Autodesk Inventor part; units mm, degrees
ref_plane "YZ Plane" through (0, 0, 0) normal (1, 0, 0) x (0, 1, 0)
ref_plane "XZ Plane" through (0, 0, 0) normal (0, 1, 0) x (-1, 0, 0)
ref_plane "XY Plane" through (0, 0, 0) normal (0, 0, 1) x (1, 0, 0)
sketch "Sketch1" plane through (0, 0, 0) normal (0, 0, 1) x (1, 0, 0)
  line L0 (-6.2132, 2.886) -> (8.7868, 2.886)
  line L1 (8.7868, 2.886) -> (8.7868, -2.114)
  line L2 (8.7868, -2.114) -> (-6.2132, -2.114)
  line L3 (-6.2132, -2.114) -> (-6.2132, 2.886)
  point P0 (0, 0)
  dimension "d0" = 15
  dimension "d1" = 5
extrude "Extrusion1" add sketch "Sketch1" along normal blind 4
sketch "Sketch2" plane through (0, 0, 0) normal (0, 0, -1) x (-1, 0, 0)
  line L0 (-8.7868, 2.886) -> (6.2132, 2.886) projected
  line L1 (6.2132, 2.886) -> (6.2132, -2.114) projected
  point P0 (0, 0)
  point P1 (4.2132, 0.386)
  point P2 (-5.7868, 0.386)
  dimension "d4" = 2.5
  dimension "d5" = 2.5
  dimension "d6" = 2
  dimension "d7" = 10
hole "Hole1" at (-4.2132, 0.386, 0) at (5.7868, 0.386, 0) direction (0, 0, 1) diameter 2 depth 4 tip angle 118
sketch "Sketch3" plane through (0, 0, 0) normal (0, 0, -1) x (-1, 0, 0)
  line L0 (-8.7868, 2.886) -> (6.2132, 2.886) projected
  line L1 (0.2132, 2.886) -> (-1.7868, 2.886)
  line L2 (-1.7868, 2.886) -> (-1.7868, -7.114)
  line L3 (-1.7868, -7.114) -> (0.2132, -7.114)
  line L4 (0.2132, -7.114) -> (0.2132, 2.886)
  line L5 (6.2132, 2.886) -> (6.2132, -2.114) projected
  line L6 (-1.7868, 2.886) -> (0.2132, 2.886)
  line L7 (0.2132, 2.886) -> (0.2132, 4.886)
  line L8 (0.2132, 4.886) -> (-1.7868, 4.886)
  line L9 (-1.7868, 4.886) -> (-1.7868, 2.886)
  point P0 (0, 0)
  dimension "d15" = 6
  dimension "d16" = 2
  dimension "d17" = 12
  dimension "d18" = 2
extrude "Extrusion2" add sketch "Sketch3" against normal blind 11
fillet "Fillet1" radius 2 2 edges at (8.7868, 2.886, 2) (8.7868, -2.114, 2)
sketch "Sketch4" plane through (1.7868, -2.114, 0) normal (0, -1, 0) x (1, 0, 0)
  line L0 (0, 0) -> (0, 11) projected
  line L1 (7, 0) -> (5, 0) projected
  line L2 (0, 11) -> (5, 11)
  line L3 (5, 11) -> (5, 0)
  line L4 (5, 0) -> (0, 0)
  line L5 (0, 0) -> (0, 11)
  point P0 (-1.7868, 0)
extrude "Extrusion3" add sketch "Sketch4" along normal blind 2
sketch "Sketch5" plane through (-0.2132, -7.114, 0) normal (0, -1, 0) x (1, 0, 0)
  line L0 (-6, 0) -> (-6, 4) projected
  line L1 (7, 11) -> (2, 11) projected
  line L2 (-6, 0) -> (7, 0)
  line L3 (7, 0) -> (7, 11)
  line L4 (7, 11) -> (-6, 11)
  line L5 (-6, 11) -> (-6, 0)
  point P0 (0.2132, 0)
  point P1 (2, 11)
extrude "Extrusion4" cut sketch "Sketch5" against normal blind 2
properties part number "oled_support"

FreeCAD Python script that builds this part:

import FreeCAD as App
import Part
import Sketcher

V = App.Vector
Q = App.Units.Quantity


def edges_at(feature, points):
    """Names of the edges that pass closest to the given points."""
    edges = feature.Shape.Edges
    near = lambda p: min(range(len(edges)), key=lambda i: edges[i].distToShape(Part.Vertex(*p))[0])
    return sorted({f"Edge{near(p) + 1}" for p in points})


def add_polygon(sketch, points):
    """Adds a closed chain of lines whose ends are joined by coincident constraints."""
    first, n = sketch.GeometryCount, len(points)
    for a, b in zip(points, points[1:] + points[:1]):
        sketch.addGeometry(Part.LineSegment(App.Vector(*a, 0), App.Vector(*b, 0)), False)
    for i in range(n):
        sketch.addConstraint(Sketcher.Constraint("Coincident", first + i, 2, first + (i + 1) % n, 1))

doc = App.newDocument("Part")
body = doc.addObject("PartDesign::Body", "Body")

sketch1 = doc.addObject("Sketcher::SketchObject", "Sketch")
body.addObject(sketch1)
sketch1.AttachmentSupport = (doc.XY_Plane, [""])
sketch1.MapMode = "FlatFace"
add_polygon(sketch1, [(9, 3), (-6, 3), (-6, -2), (9, -2)])
sketch1.addConstraint(Sketcher.Constraint("Horizontal", 0))
sketch1.addConstraint(Sketcher.Constraint("Vertical", 1))
sketch1.addConstraint(Sketcher.Constraint("Horizontal", 2))
sketch1.addConstraint(Sketcher.Constraint("Vertical", 3))
sketch1.addConstraint(Sketcher.Constraint("DistanceX", 0, 2, 0, 1, Q("15 mm")))
sketch1.addConstraint(Sketcher.Constraint("DistanceY", 1, 2, 1, 1, Q("5 mm")))
sketch1.addConstraint(Sketcher.Constraint("DistanceY", -1, 1, 0, 2, Q("2.886 mm")))
sketch1.addConstraint(Sketcher.Constraint("DistanceX", 0, 2, -1, 1, Q("6.2132 mm")))
pad1 = doc.addObject("PartDesign::Pad", "Pad")
body.addObject(pad1)
pad1.Profile = sketch1
pad1.Length = 4

sketch2 = doc.addObject("Sketcher::SketchObject", "Sketch001")
body.addObject(sketch2)
sketch2.AttachmentSupport = (doc.XY_Plane, [""])
sketch2.MapMode = "FlatFace"
sketch2.addGeometry(Part.Circle(V(-4.2, 0.4, 0), V(0, 0, 1), 1), False)
sketch2.addGeometry(Part.Circle(V(5.8, 0.4, 0), V(0, 0, 1), 1), False)
sketch2.addConstraint(Sketcher.Constraint("Equal", 0, 1))
sketch2.addConstraint(Sketcher.Constraint("Horizontal", 0, 3, 1, 3))
sketch2.addConstraint(Sketcher.Constraint("Diameter", 0, Q("2 mm")))
sketch2.addConstraint(Sketcher.Constraint("DistanceX", 0, 3, 1, 3, Q("10 mm")))
sketch2.addConstraint(Sketcher.Constraint("DistanceY", -1, 1, 0, 3, Q("0.386 mm")))
sketch2.addConstraint(Sketcher.Constraint("DistanceX", 0, 3, -1, 1, Q("4.2132 mm")))
doc.recompute()
hole = doc.addObject("PartDesign::Hole", "Hole")
body.addObject(hole)
hole.Profile = sketch2
hole.ThreadType = "None"
hole.Diameter = 2
hole.DepthType = "Dimension"
hole.Depth = 4
hole.DrillPoint = "Angled"
hole.DrillPointAngle = 118
hole.Reversed = True

sketch3 = doc.addObject("Sketcher::SketchObject", "Sketch002")
body.addObject(sketch3)
sketch3.AttachmentSupport = (doc.XY_Plane, [""])
sketch3.MapMode = "FlatFace"
add_polygon(sketch3, [(1.8, 4.9), (1.8, -7.1), (-0.2, -7.1), (-0.2, 4.9)])
sketch3.addConstraint(Sketcher.Constraint("Vertical", 0))
sketch3.addConstraint(Sketcher.Constraint("Horizontal", 1))
sketch3.addConstraint(Sketcher.Constraint("Vertical", 2))
sketch3.addConstraint(Sketcher.Constraint("Horizontal", 3))
sketch3.addConstraint(Sketcher.Constraint("DistanceX", 1, 2, 1, 1, Q("2 mm")))
sketch3.addConstraint(Sketcher.Constraint("DistanceY", 0, 2, 0, 1, Q("12 mm")))
sketch3.addConstraint(Sketcher.Constraint("DistanceY", 0, 2, -1, 1, Q("7.114 mm")))
sketch3.addConstraint(Sketcher.Constraint("DistanceX", -1, 1, 0, 2, Q("1.7868 mm")))
pad2 = doc.addObject("PartDesign::Pad", "Pad001")
body.addObject(pad2)
pad2.Profile = sketch3
pad2.Length = 11
doc.recompute()

fillet = doc.addObject("PartDesign::Fillet", "Fillet")
body.addObject(fillet)
fillet.Base = (pad2, edges_at(pad2, [(8.787, 2.886, 2), (8.787, -2.114, 2)]))
fillet.Radius = 2

sketch4 = doc.addObject("Sketcher::SketchObject", "Sketch003")
body.addObject(sketch4)
sketch4.AttachmentSupport = (doc.XZ_Plane, [""])
sketch4.MapMode = "FlatFace"
sketch4.AttachmentOffset = App.Placement(V(0, 0, 2.114), App.Rotation())
add_polygon(sketch4, [(2, 11), (2, 0), (7, 0), (7, 11)])
sketch4.addConstraint(Sketcher.Constraint("Vertical", 0))
sketch4.addConstraint(Sketcher.Constraint("Horizontal", 1))
sketch4.addConstraint(Sketcher.Constraint("Vertical", 2))
sketch4.addConstraint(Sketcher.Constraint("Horizontal", 3))
sketch4.addConstraint(Sketcher.Constraint("PointOnObject", 0, 2, -1))
sketch4.addConstraint(Sketcher.Constraint("DistanceX", 1, 1, 1, 2, Q("5 mm")))
sketch4.addConstraint(Sketcher.Constraint("DistanceY", 0, 2, 0, 1, Q("11 mm")))
sketch4.addConstraint(Sketcher.Constraint("DistanceX", -1, 1, 0, 2, Q("1.7868 mm")))
pad3 = doc.addObject("PartDesign::Pad", "Pad002")
body.addObject(pad3)
pad3.Profile = sketch4
pad3.Length = 2

sketch5 = doc.addObject("Sketcher::SketchObject", "Sketch004")
body.addObject(sketch5)
sketch5.AttachmentSupport = (doc.XZ_Plane, [""])
sketch5.MapMode = "FlatFace"
sketch5.AttachmentOffset = App.Placement(V(0, 0, 7.114), App.Rotation())
add_polygon(sketch5, [(-6, 11), (-6, 0), (7, 0), (7, 11)])
sketch5.addConstraint(Sketcher.Constraint("Vertical", 0))
sketch5.addConstraint(Sketcher.Constraint("Horizontal", 1))
sketch5.addConstraint(Sketcher.Constraint("Vertical", 2))
sketch5.addConstraint(Sketcher.Constraint("Horizontal", 3))
sketch5.addConstraint(Sketcher.Constraint("PointOnObject", 0, 2, -1))
sketch5.addConstraint(Sketcher.Constraint("DistanceX", 1, 1, 1, 2, Q("13 mm")))
sketch5.addConstraint(Sketcher.Constraint("DistanceY", 0, 2, 0, 1, Q("11 mm")))
sketch5.addConstraint(Sketcher.Constraint("DistanceX", 0, 2, -1, 1, Q("6.2132 mm")))
pocket1 = doc.addObject("PartDesign::Pocket", "Pocket")
body.addObject(pocket1)
pocket1.Profile = sketch5
pocket1.Length = 2

doc.recompute()
